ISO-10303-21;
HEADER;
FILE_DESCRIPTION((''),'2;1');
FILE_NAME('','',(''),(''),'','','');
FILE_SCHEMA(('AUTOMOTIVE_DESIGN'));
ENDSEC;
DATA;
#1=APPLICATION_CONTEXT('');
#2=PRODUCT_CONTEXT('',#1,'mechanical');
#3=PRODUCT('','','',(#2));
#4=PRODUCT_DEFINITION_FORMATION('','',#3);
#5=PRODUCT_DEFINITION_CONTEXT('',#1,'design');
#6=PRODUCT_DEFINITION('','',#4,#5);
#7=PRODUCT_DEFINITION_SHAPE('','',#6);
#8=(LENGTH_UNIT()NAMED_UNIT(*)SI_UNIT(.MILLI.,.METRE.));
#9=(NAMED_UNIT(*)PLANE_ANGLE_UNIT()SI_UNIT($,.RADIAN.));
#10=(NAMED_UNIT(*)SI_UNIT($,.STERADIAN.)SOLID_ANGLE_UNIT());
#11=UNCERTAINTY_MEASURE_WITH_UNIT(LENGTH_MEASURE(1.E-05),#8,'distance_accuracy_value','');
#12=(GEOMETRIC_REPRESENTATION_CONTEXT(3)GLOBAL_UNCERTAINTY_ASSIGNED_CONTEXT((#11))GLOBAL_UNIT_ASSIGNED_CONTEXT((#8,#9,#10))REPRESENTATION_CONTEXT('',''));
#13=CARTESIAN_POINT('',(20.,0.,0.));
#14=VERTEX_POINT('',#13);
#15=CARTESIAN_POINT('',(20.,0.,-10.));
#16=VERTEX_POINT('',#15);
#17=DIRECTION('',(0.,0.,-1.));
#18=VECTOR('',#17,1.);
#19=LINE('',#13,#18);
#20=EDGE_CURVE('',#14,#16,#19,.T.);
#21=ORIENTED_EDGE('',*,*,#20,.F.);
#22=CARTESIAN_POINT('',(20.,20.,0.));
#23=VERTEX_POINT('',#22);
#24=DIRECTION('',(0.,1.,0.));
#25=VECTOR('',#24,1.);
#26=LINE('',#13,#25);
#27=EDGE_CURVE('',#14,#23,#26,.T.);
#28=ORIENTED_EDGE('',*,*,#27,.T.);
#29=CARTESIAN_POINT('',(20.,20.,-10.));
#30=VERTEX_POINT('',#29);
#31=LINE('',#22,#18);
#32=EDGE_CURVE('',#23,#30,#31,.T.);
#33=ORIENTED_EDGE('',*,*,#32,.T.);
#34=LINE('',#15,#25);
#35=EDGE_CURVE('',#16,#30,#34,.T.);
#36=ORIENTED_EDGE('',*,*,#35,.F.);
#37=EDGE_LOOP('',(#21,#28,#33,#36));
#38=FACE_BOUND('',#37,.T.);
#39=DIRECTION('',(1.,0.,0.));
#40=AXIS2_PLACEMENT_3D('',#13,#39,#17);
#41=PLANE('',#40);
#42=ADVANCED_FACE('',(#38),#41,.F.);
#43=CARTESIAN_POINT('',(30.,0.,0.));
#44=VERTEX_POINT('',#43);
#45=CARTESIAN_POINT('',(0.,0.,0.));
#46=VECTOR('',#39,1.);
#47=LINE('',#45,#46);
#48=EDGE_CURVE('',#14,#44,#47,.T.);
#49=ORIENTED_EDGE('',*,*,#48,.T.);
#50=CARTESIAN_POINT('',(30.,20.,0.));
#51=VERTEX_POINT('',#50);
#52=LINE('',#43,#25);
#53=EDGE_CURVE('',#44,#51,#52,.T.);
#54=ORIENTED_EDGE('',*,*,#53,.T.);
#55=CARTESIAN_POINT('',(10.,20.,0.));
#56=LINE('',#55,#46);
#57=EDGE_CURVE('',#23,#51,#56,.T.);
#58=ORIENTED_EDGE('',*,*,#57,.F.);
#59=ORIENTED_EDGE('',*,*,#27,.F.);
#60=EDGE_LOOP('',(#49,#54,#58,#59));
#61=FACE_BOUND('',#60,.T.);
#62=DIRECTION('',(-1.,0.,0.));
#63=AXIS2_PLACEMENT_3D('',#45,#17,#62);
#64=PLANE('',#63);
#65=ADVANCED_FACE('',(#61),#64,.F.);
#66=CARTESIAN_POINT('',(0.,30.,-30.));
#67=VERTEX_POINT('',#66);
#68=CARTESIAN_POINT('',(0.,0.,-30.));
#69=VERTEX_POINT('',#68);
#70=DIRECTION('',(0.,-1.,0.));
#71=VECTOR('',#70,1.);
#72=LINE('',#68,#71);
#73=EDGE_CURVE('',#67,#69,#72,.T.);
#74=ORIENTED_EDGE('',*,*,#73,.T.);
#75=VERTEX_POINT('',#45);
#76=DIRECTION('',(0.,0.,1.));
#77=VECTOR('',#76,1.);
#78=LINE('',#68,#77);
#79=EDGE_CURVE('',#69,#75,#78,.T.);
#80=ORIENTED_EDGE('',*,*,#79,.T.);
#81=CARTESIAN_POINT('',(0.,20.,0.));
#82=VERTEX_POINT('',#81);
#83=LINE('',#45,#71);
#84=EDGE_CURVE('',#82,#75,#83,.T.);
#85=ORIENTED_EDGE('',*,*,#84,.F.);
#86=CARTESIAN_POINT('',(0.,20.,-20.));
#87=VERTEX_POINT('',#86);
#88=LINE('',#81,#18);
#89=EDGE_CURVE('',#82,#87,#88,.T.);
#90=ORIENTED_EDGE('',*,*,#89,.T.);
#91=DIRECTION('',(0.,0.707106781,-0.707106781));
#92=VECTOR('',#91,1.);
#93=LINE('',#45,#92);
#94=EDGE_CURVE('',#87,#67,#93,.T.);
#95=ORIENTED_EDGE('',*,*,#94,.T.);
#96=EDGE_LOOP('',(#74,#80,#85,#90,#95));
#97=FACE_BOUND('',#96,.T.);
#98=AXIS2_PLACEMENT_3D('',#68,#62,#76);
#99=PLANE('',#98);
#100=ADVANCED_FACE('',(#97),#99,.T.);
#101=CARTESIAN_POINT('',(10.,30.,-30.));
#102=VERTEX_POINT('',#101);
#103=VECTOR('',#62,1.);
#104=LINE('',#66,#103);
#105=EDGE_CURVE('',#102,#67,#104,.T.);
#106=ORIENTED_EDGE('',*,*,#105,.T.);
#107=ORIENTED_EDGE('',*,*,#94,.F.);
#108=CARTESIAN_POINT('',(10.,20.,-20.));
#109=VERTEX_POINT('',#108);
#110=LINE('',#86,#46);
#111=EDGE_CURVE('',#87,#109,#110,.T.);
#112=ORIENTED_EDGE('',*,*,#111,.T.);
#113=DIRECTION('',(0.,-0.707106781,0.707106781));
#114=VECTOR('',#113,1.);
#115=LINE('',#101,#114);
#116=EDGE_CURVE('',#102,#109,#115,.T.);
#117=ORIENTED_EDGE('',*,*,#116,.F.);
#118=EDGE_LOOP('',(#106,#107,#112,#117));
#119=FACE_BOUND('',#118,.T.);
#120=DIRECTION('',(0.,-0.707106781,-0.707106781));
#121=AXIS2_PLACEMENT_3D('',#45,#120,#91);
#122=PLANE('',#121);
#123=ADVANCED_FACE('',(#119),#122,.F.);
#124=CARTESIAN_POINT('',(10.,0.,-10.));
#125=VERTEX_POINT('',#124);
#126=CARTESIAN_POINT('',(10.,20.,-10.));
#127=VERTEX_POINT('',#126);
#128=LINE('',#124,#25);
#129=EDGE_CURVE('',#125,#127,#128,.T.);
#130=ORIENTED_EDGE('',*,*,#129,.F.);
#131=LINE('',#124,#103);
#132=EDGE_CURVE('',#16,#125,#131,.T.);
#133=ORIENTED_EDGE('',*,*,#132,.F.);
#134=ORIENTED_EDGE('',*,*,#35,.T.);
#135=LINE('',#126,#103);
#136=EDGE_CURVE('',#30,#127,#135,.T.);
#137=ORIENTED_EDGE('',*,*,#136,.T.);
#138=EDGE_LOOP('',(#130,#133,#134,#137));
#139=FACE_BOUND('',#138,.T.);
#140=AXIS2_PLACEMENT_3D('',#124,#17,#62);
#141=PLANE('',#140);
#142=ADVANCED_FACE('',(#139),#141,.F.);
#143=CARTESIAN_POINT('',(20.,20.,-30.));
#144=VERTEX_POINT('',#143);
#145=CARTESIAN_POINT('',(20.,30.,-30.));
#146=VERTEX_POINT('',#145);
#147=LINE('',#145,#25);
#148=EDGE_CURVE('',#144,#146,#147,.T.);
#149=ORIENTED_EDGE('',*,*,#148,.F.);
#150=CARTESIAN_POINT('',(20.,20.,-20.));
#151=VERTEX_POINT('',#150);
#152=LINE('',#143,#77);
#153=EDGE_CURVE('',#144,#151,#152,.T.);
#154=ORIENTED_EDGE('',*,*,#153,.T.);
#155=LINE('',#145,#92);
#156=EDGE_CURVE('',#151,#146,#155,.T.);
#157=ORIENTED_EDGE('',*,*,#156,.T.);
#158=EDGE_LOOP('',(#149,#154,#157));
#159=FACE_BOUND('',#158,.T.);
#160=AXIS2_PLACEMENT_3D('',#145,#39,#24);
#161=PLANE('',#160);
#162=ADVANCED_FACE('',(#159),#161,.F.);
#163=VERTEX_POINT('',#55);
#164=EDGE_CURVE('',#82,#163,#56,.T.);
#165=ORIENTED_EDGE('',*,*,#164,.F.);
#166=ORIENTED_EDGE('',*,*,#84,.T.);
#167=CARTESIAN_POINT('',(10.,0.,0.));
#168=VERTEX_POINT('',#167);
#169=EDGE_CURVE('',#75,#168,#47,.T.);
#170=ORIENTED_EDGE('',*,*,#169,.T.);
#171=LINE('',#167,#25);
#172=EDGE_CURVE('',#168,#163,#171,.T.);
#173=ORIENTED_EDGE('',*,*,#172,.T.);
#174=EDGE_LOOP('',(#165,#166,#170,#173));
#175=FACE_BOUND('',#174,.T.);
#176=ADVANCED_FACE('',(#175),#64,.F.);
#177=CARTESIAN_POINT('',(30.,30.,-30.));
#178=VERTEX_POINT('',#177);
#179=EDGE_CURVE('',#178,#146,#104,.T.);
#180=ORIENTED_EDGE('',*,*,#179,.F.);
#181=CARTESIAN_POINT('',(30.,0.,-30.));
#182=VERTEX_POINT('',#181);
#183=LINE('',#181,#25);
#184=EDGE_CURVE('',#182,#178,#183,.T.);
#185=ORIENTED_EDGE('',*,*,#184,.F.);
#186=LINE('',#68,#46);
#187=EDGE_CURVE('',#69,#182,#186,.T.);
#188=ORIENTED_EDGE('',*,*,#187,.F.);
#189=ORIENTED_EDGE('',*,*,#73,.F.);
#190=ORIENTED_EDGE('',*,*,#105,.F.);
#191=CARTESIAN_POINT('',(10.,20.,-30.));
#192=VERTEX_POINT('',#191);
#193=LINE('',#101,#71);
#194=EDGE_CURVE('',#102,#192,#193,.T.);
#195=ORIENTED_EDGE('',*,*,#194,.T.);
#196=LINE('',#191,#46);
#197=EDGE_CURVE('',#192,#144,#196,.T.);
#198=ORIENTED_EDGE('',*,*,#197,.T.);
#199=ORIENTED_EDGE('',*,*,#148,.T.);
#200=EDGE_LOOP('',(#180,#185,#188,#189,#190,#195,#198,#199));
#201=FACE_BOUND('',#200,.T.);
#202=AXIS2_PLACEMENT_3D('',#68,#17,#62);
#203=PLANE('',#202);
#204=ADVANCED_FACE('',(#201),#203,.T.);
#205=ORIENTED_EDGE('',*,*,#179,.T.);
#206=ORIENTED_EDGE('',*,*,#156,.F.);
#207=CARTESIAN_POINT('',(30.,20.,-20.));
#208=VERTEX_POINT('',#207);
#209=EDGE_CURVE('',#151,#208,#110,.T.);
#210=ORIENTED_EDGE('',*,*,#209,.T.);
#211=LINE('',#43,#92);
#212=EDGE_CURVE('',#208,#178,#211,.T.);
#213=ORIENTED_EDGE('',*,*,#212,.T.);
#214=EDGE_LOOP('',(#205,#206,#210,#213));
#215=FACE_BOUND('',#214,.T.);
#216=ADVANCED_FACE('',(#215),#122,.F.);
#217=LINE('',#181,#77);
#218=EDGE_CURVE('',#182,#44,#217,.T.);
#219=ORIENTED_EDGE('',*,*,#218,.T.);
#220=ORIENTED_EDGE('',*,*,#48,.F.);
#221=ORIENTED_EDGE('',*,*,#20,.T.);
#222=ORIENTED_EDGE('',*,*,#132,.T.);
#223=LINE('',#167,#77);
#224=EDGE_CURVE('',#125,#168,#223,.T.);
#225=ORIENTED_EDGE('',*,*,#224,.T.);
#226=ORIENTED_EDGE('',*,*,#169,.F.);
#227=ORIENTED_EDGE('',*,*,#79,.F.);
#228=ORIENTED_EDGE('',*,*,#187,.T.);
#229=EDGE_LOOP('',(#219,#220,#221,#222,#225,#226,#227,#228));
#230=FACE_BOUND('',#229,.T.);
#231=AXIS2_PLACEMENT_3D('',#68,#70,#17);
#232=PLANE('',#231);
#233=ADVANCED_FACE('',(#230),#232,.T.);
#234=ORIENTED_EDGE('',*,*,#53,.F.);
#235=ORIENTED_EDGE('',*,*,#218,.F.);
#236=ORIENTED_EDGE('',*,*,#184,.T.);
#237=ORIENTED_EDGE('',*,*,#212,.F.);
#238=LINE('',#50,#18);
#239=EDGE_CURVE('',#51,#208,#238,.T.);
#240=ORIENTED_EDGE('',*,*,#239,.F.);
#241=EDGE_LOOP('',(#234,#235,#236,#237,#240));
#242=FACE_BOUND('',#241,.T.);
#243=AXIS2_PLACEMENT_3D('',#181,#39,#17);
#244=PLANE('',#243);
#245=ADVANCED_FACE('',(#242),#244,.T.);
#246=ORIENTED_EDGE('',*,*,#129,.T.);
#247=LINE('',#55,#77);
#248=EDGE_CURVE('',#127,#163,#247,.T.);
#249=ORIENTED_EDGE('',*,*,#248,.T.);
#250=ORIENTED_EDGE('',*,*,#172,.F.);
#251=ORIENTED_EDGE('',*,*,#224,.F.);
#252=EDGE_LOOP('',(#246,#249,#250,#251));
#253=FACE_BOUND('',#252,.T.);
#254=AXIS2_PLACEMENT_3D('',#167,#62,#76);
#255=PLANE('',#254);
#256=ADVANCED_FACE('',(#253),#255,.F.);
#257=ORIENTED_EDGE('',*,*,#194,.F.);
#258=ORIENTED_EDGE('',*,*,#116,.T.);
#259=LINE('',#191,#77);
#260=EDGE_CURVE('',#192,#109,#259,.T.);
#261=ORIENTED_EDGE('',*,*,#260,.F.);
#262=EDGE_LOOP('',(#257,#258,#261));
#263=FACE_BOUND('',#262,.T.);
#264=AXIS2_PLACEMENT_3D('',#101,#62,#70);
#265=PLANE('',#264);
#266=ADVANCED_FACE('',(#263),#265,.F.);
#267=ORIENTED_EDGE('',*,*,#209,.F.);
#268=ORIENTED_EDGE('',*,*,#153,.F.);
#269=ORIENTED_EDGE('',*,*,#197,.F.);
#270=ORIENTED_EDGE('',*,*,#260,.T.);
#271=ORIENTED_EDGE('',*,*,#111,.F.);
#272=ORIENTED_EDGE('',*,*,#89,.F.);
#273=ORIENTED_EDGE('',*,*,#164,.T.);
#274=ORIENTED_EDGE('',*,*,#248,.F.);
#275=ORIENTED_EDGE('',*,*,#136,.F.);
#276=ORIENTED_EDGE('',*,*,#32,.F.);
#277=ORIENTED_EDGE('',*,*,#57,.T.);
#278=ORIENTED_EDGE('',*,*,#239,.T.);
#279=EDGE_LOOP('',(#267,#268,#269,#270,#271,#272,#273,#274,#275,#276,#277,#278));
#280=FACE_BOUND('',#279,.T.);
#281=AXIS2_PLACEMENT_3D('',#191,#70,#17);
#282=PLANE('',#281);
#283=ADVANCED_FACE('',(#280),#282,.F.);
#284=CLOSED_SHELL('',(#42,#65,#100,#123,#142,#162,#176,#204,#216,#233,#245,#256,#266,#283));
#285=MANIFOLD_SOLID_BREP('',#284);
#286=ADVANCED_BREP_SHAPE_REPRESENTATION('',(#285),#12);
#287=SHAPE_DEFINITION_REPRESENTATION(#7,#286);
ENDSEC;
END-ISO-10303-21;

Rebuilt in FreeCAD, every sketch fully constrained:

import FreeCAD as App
import Part
import Sketcher
Q = App.Units.Quantity

doc = App.newDocument("Part")
body = doc.addObject("PartDesign::Body", "Body")

# Sketch on XY plane
sketch1 = body.newObject("Sketcher::SketchObject", "Sketch")
sketch1.AttachmentSupport = (doc.getObject("XY_Plane"), [""])
sketch1.MapMode = "FlatFace"
sketch1.addGeometry([
    Part.LineSegment(App.Vector(0, 30, 0), App.Vector(0, 0, 0)),
    Part.LineSegment(App.Vector(0, 0, 0), App.Vector(30, 0, 0)),
    Part.LineSegment(App.Vector(30, 0, 0), App.Vector(30, 30, 0)),
    Part.LineSegment(App.Vector(30, 30, 0), App.Vector(0, 30, 0)),
], False)
sketch1.addConstraint([
    Sketcher.Constraint("Coincident", 0, 2, 1, 1),
    Sketcher.Constraint("Coincident", 1, 2, 2, 1),
    Sketcher.Constraint("Coincident", 2, 2, 3, 1),
    Sketcher.Constraint("Coincident", 3, 2, 0, 1),
    Sketcher.Constraint("Vertical", 0),
    Sketcher.Constraint("Horizontal", 1),
    Sketcher.Constraint("Vertical", 2),
    Sketcher.Constraint("Horizontal", 3),
    Sketcher.Constraint("Coincident", 0, 2, -1, 1),
    Sketcher.Constraint("Equal", 3, 0),
    Sketcher.Constraint("DistanceX", 1, 1, 1, 2, Q("30 mm")),
])
pad1 = body.newObject("PartDesign::Pad", "Pad")
pad1.Profile = sketch1
pad1.Length = 30
pad1.Reversed = True

# Sketch on XY plane
sketch2 = body.newObject("Sketcher::SketchObject", "Sketch001")
sketch2.AttachmentSupport = (doc.getObject("XY_Plane"), [""])
sketch2.MapMode = "FlatFace"
sketch2.addGeometry([
    Part.LineSegment(App.Vector(10, 30, 0), App.Vector(10, 20, 0)),
    Part.LineSegment(App.Vector(10, 20, 0), App.Vector(20, 20, 0)),
    Part.LineSegment(App.Vector(20, 20, 0), App.Vector(20, 30, 0)),
    Part.LineSegment(App.Vector(20, 30, 0), App.Vector(10, 30, 0)),
], False)
sketch2.addConstraint([
    Sketcher.Constraint("Coincident", 0, 2, 1, 1),
    Sketcher.Constraint("Coincident", 1, 2, 2, 1),
    Sketcher.Constraint("Coincident", 2, 2, 3, 1),
    Sketcher.Constraint("Coincident", 3, 2, 0, 1),
    Sketcher.Constraint("Vertical", 0),
    Sketcher.Constraint("Horizontal", 1),
    Sketcher.Constraint("Vertical", 2),
    Sketcher.Constraint("Horizontal", 3),
    Sketcher.Constraint("Equal", 3, 0),
    Sketcher.Constraint("DistanceX", 1, 1, 1, 2, Q("10 mm")),
    Sketcher.Constraint("DistanceX", -1, 1, 0, 2, Q("10 mm")),
    Sketcher.Constraint("DistanceY", -1, 1, 0, 2, Q("20 mm")),
])
pocket1 = body.newObject("PartDesign::Pocket", "Pocket")
pocket1.Profile = sketch2
pocket1.Type = "ThroughAll"

# Sketch on YZ plane
sketch3 = body.newObject("Sketcher::SketchObject", "Sketch002")
sketch3.AttachmentSupport = (doc.getObject("YZ_Plane"), [""])
sketch3.MapMode = "FlatFace"
sketch3.AttachmentOffset = App.Placement(App.Vector(0, 0, 30), App.Rotation())
sketch3.addGeometry([
    Part.LineSegment(App.Vector(30, -30, 0), App.Vector(30, 0, 0)),
    Part.LineSegment(App.Vector(30, 0, 0), App.Vector(20, 0, 0)),
    Part.LineSegment(App.Vector(20, 0, 0), App.Vector(20, -20, 0)),
    Part.LineSegment(App.Vector(20, -20, 0), App.Vector(30, -30, 0)),
], False)
sketch3.addConstraint([
    Sketcher.Constraint("Coincident", 0, 2, 1, 1),
    Sketcher.Constraint("Coincident", 1, 2, 2, 1),
    Sketcher.Constraint("Coincident", 2, 2, 3, 1),
    Sketcher.Constraint("Coincident", 3, 2, 0, 1),
    Sketcher.Constraint("Vertical", 0),
    Sketcher.Constraint("Horizontal", 1),
    Sketcher.Constraint("Vertical", 2),
    Sketcher.Constraint("PointOnObject", 0, 2, -1),
    Sketcher.Constraint("DistanceX", 1, 2, 1, 1, Q("10 mm")),
    Sketcher.Constraint("DistanceY", 0, 1, 0, 2, Q("30 mm")),
    Sketcher.Constraint("DistanceY", 2, 2, 2, 1, Q("20 mm")),
    Sketcher.Constraint("DistanceX", -1, 1, 0, 2, Q("30 mm")),
])
pocket2 = body.newObject("PartDesign::Pocket", "Pocket001")
pocket2.Profile = sketch3
pocket2.Type = "ThroughAll"

# Sketch on XZ plane
sketch4 = body.newObject("Sketcher::SketchObject", "Sketch003")
sketch4.AttachmentSupport = (doc.getObject("XZ_Plane"), [""])
sketch4.MapMode = "FlatFace"
sketch4.AttachmentOffset = App.Placement(App.Vector(0, 0, -20), App.Rotation())
sketch4.addGeometry([
    Part.LineSegment(App.Vector(10, -10, 0), App.Vector(10, 0, 0)),
    Part.LineSegment(App.Vector(10, 0, 0), App.Vector(20, 0, 0)),
    Part.LineSegment(App.Vector(20, 0, 0), App.Vector(20, -10, 0)),
    Part.LineSegment(App.Vector(20, -10, 0), App.Vector(10, -10, 0)),
], False)
sketch4.addConstraint([
    Sketcher.Constraint("Coincident", 0, 2, 1, 1),
    Sketcher.Constraint("Coincident", 1, 2, 2, 1),
    Sketcher.Constraint("Coincident", 2, 2, 3, 1),
    Sketcher.Constraint("Coincident", 3, 2, 0, 1),
    Sketcher.Constraint("Vertical", 0),
    Sketcher.Constraint("Horizontal", 1),
    Sketcher.Constraint("Vertical", 2),
    Sketcher.Constraint("Horizontal", 3),
    Sketcher.Constraint("PointOnObject", 0, 2, -1),
    Sketcher.Constraint("Equal", 3, 0),
    Sketcher.Constraint("DistanceX", 1, 1, 1, 2, Q("10 mm")),
    Sketcher.Constraint("DistanceX", -1, 1, 0, 2, Q("10 mm")),
])
pocket3 = body.newObject("PartDesign::Pocket", "Pocket002")
pocket3.Profile = sketch4
pocket3.Type = "ThroughAll"
pocket3.Reversed = True

doc.recompute()
